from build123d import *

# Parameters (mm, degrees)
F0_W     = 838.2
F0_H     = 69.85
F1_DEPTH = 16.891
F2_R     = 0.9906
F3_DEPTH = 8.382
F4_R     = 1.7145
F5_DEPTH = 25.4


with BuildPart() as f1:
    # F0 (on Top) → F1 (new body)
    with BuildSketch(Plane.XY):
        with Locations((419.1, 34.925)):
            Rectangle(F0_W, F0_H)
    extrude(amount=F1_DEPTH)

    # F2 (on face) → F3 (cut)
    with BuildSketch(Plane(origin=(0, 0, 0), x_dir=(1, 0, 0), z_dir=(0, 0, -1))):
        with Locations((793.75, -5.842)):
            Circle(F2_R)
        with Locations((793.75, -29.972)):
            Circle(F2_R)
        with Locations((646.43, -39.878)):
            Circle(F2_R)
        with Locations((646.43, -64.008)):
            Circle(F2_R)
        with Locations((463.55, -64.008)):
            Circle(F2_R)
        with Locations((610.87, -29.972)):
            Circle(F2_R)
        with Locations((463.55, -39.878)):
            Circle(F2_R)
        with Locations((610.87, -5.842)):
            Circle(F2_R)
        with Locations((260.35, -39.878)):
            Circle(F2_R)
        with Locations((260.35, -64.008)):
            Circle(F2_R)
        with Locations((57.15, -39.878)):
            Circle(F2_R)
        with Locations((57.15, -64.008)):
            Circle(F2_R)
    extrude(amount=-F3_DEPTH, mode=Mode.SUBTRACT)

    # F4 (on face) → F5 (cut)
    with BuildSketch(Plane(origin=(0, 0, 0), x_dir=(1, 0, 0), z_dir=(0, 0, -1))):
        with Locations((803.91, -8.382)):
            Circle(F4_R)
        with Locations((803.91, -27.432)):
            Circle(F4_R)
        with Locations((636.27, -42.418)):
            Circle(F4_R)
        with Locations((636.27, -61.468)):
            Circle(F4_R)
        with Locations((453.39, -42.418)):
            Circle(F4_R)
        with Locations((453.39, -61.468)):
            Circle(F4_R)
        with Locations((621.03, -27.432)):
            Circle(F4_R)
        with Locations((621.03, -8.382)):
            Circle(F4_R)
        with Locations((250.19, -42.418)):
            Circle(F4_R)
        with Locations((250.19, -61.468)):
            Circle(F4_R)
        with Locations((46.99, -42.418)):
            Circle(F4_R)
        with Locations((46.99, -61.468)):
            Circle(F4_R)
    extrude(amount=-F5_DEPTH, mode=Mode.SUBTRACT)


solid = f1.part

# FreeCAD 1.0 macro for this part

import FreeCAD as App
import Part
import Sketcher
Q = App.Units.Quantity


def add_polygon(sketch, points):
    """Adds a closed chain of lines whose ends are joined by coincident constraints."""
    first, n = sketch.GeometryCount, len(points)
    for a, b in zip(points, points[1:] + points[:1]):
        sketch.addGeometry(Part.LineSegment(App.Vector(*a, 0), App.Vector(*b, 0)), False)
    for i in range(n):
        sketch.addConstraint(Sketcher.Constraint("Coincident", first + i, 2, first + (i + 1) % n, 1))

doc = App.newDocument("Part")
params = doc.addObject("Spreadsheet::Sheet", "Params")
for row, (alias, value) in enumerate([
    ("sketch1_width", "33 in"),
    ("sketch1_height", "2.75 in"),
    ("pad1_length", "0.665 in"),
    ("sketch2_diameter", "0.078 in"),
    ("pocket1_length", "0.33 in"),
    ("sketch3_diameter", "0.135 in"),
    ("pocket2_length", "1 in"),
], start=1):
    params.set(f"A{row}", alias)
    params.set(f"B{row}", "=" + value)
    params.setAlias(f"B{row}", alias)

body = doc.addObject("PartDesign::Body", "Body")

# Sketch on XY plane
sketch1 = body.newObject("Sketcher::SketchObject", "Sketch")
sketch1.AttachmentSupport = (doc.getObject("XY_Plane"), [""])
sketch1.MapMode = "FlatFace"
add_polygon(sketch1, [(0, 70), (0, 0), (838, 0), (838, 70)])  # lines 0-3
sketch1.addConstraint([
    Sketcher.Constraint("Vertical", 0),
    Sketcher.Constraint("Horizontal", 1),
    Sketcher.Constraint("Vertical", 2),
    Sketcher.Constraint("Horizontal", 3),
    Sketcher.Constraint("Coincident", 0, 2, -1, 1),
    Sketcher.Constraint("DistanceX", 1, 1, 1, 2, Q("33 in")),
    Sketcher.Constraint("DistanceY", 0, 2, 0, 1, Q("2.75 in")),
])
sketch1.setExpression("Constraints[9]", "Params.sketch1_width")
sketch1.setExpression("Constraints[10]", "Params.sketch1_height")
pad1 = body.newObject("PartDesign::Pad", "Pad")
pad1.Profile = sketch1
pad1.setExpression("Length", "Params.pad1_length")

# Sketch on XY plane
sketch2 = body.newObject("Sketcher::SketchObject", "Sketch001")
sketch2.AttachmentSupport = (doc.getObject("XY_Plane"), [""])
sketch2.MapMode = "FlatFace"
sketch2.addGeometry([
    Part.Circle(App.Vector(793.8, 5.8, 0), App.Vector(0, 0, 1), 1),  # 0
    Part.Circle(App.Vector(793.8, 30, 0), App.Vector(0, 0, 1), 1),  # 1
    Part.Circle(App.Vector(646.4, 39.9, 0), App.Vector(0, 0, 1), 1),  # 2
    Part.Circle(App.Vector(646.4, 64, 0), App.Vector(0, 0, 1), 1),  # 3
    Part.Circle(App.Vector(463.6, 64, 0), App.Vector(0, 0, 1), 1),  # 4
    Part.Circle(App.Vector(610.9, 30, 0), App.Vector(0, 0, 1), 1),  # 5
    Part.Circle(App.Vector(463.6, 39.9, 0), App.Vector(0, 0, 1), 1),  # 6
    Part.Circle(App.Vector(610.9, 5.8, 0), App.Vector(0, 0, 1), 1),  # 7
    Part.Circle(App.Vector(260.4, 39.9, 0), App.Vector(0, 0, 1), 1),  # 8
    Part.Circle(App.Vector(260.4, 64, 0), App.Vector(0, 0, 1), 1),  # 9
    Part.Circle(App.Vector(57.1, 39.9, 0), App.Vector(0, 0, 1), 1),  # 10
    Part.Circle(App.Vector(57.1, 64, 0), App.Vector(0, 0, 1), 1),  # 11
], False)
sketch2.addConstraint([
    Sketcher.Constraint("Equal", 0, 1),
    Sketcher.Constraint("Equal", 1, 2),
    Sketcher.Constraint("Equal", 2, 3),
    Sketcher.Constraint("Equal", 3, 4),
    Sketcher.Constraint("Equal", 4, 5),
    Sketcher.Constraint("Equal", 5, 6),
    Sketcher.Constraint("Equal", 6, 7),
    Sketcher.Constraint("Equal", 7, 8),
    Sketcher.Constraint("Equal", 8, 9),
    Sketcher.Constraint("Equal", 9, 10),
    Sketcher.Constraint("Equal", 10, 11),
    Sketcher.Constraint("Horizontal", 3, 3, 4, 3),
    Sketcher.Constraint("Horizontal", 1, 3, 5, 3),
    Sketcher.Constraint("Horizontal", 2, 3, 6, 3),
    Sketcher.Constraint("Horizontal", 0, 3, 7, 3),
    Sketcher.Constraint("Horizontal", 6, 3, 8, 3),
    Sketcher.Constraint("Horizontal", 4, 3, 9, 3),
    Sketcher.Constraint("Horizontal", 8, 3, 10, 3),
    Sketcher.Constraint("Horizontal", 9, 3, 11, 3),
    Sketcher.Constraint("Vertical", 0, 3, 1, 3),
    Sketcher.Constraint("Vertical", 2, 3, 3, 3),
    Sketcher.Constraint("Vertical", 4, 3, 6, 3),
    Sketcher.Constraint("Vertical", 5, 3, 7, 3),
    Sketcher.Constraint("Vertical", 8, 3, 9, 3),
    Sketcher.Constraint("Vertical", 10, 3, 11, 3),
    Sketcher.Constraint("Diameter", 0, Q("0.078 in")),
    Sketcher.Constraint("DistanceX", 4, 3, 1, 3, Q("13 in")),
    Sketcher.Constraint("DistanceX", 8, 3, 6, 3, Q("8 in")),
    Sketcher.Constraint("DistanceX", 10, 3, 8, 3, Q("8 in")),
    Sketcher.Constraint("DistanceX", 2, 3, 1, 3, Q("5.8 in")),
    Sketcher.Constraint("DistanceX", 5, 3, 2, 3, Q("1.4 in")),
    Sketcher.Constraint("DistanceX", -1, 1, 0, 3, Q("31.25 in")),
    Sketcher.Constraint("DistanceY", -1, 1, 0, 3, Q("0.23 in")),
    Sketcher.Constraint("DistanceY", -1, 1, 1, 3, Q("1.18 in")),
    Sketcher.Constraint("DistanceY", -1, 1, 2, 3, Q("1.57 in")),
    Sketcher.Constraint("DistanceY", -1, 1, 3, 3, Q("2.52 in")),
])
sketch2.setExpression("Constraints[25]", "Params.sketch2_diameter")
pocket1 = body.newObject("PartDesign::Pocket", "Pocket")
pocket1.Profile = sketch2
pocket1.setExpression("Length", "Params.pocket1_length")
pocket1.Reversed = True

# Sketch on XY plane
sketch3 = body.newObject("Sketcher::SketchObject", "Sketch002")
sketch3.AttachmentSupport = (doc.getObject("XY_Plane"), [""])
sketch3.MapMode = "FlatFace"
sketch3.addGeometry([
    Part.Circle(App.Vector(803.9, 8.4, 0), App.Vector(0, 0, 1), 1.7),  # 0
    Part.Circle(App.Vector(803.9, 27.4, 0), App.Vector(0, 0, 1), 1.7),  # 1
    Part.Circle(App.Vector(636.3, 42.4, 0), App.Vector(0, 0, 1), 1.7),  # 2
    Part.Circle(App.Vector(636.3, 61.5, 0), App.Vector(0, 0, 1), 1.7),  # 3
    Part.Circle(App.Vector(453.4, 42.4, 0), App.Vector(0, 0, 1), 1.7),  # 4
    Part.Circle(App.Vector(453.4, 61.5, 0), App.Vector(0, 0, 1), 1.7),  # 5
    Part.Circle(App.Vector(621, 27.4, 0), App.Vector(0, 0, 1), 1.7),  # 6
    Part.Circle(App.Vector(621, 8.4, 0), App.Vector(0, 0, 1), 1.7),  # 7
    Part.Circle(App.Vector(250.2, 42.4, 0), App.Vector(0, 0, 1), 1.7),  # 8
    Part.Circle(App.Vector(250.2, 61.5, 0), App.Vector(0, 0, 1), 1.7),  # 9
    Part.Circle(App.Vector(47, 42.4, 0), App.Vector(0, 0, 1), 1.7),  # 10
    Part.Circle(App.Vector(47, 61.5, 0), App.Vector(0, 0, 1), 1.7),  # 11
], False)
sketch3.addConstraint([
    Sketcher.Constraint("Equal", 0, 1),
    Sketcher.Constraint("Equal", 1, 2),
    Sketcher.Constraint("Equal", 2, 3),
    Sketcher.Constraint("Equal", 3, 4),
    Sketcher.Constraint("Equal", 4, 5),
    Sketcher.Constraint("Equal", 5, 6),
    Sketcher.Constraint("Equal", 6, 7),
    Sketcher.Constraint("Equal", 7, 8),
    Sketcher.Constraint("Equal", 8, 9),
    Sketcher.Constraint("Equal", 9, 10),
    Sketcher.Constraint("Equal", 10, 11),
    Sketcher.Constraint("Horizontal", 2, 3, 4, 3),
    Sketcher.Constraint("Horizontal", 3, 3, 5, 3),
    Sketcher.Constraint("Horizontal", 1, 3, 6, 3),
    Sketcher.Constraint("Horizontal", 0, 3, 7, 3),
    Sketcher.Constraint("Horizontal", 4, 3, 8, 3),
    Sketcher.Constraint("Horizontal", 5, 3, 9, 3),
    Sketcher.Constraint("Horizontal", 8, 3, 10, 3),
    Sketcher.Constraint("Horizontal", 9, 3, 11, 3),
    Sketcher.Constraint("Vertical", 0, 3, 1, 3),
    Sketcher.Constraint("Vertical", 2, 3, 3, 3),
    Sketcher.Constraint("Vertical", 4, 3, 5, 3),
    Sketcher.Constraint("Vertical", 6, 3, 7, 3),
    Sketcher.Constraint("Vertical", 8, 3, 9, 3),
    Sketcher.Constraint("Vertical", 10, 3, 11, 3),
    Sketcher.Constraint("Diameter", 0, Q("0.135 in")),
    Sketcher.Constraint("DistanceX", 8, 3, 4, 3, Q("8 in")),
    Sketcher.Constraint("DistanceX", 10, 3, 8, 3, Q("8 in")),
    Sketcher.Constraint("DistanceX", 2, 3, 1, 3, Q("6.6 in")),
    Sketcher.Constraint("DistanceX", 4, 3, 2, 3, Q("7.2 in")),
    Sketcher.Constraint("DistanceX", 6, 3, 2, 3, Q("0.6 in")),
    Sketcher.Constraint("DistanceX", -1, 1, 0, 3, Q("31.65 in")),
    Sketcher.Constraint("DistanceY", -1, 1, 0, 3, Q("0.33 in")),
    Sketcher.Constraint("DistanceY", -1, 1, 1, 3, Q("1.08 in")),
    Sketcher.Constraint("DistanceY", -1, 1, 2, 3, Q("1.67 in")),
    Sketcher.Constraint("DistanceY", -1, 1, 3, 3, Q("2.42 in")),
])
sketch3.setExpression("Constraints[25]", "Params.sketch3_diameter")
pocket2 = body.newObject("PartDesign::Pocket", "Pocket001")
pocket2.Profile = sketch3
pocket2.setExpression("Length", "Params.pocket2_length")
pocket2.Reversed = True

doc.recompute()
